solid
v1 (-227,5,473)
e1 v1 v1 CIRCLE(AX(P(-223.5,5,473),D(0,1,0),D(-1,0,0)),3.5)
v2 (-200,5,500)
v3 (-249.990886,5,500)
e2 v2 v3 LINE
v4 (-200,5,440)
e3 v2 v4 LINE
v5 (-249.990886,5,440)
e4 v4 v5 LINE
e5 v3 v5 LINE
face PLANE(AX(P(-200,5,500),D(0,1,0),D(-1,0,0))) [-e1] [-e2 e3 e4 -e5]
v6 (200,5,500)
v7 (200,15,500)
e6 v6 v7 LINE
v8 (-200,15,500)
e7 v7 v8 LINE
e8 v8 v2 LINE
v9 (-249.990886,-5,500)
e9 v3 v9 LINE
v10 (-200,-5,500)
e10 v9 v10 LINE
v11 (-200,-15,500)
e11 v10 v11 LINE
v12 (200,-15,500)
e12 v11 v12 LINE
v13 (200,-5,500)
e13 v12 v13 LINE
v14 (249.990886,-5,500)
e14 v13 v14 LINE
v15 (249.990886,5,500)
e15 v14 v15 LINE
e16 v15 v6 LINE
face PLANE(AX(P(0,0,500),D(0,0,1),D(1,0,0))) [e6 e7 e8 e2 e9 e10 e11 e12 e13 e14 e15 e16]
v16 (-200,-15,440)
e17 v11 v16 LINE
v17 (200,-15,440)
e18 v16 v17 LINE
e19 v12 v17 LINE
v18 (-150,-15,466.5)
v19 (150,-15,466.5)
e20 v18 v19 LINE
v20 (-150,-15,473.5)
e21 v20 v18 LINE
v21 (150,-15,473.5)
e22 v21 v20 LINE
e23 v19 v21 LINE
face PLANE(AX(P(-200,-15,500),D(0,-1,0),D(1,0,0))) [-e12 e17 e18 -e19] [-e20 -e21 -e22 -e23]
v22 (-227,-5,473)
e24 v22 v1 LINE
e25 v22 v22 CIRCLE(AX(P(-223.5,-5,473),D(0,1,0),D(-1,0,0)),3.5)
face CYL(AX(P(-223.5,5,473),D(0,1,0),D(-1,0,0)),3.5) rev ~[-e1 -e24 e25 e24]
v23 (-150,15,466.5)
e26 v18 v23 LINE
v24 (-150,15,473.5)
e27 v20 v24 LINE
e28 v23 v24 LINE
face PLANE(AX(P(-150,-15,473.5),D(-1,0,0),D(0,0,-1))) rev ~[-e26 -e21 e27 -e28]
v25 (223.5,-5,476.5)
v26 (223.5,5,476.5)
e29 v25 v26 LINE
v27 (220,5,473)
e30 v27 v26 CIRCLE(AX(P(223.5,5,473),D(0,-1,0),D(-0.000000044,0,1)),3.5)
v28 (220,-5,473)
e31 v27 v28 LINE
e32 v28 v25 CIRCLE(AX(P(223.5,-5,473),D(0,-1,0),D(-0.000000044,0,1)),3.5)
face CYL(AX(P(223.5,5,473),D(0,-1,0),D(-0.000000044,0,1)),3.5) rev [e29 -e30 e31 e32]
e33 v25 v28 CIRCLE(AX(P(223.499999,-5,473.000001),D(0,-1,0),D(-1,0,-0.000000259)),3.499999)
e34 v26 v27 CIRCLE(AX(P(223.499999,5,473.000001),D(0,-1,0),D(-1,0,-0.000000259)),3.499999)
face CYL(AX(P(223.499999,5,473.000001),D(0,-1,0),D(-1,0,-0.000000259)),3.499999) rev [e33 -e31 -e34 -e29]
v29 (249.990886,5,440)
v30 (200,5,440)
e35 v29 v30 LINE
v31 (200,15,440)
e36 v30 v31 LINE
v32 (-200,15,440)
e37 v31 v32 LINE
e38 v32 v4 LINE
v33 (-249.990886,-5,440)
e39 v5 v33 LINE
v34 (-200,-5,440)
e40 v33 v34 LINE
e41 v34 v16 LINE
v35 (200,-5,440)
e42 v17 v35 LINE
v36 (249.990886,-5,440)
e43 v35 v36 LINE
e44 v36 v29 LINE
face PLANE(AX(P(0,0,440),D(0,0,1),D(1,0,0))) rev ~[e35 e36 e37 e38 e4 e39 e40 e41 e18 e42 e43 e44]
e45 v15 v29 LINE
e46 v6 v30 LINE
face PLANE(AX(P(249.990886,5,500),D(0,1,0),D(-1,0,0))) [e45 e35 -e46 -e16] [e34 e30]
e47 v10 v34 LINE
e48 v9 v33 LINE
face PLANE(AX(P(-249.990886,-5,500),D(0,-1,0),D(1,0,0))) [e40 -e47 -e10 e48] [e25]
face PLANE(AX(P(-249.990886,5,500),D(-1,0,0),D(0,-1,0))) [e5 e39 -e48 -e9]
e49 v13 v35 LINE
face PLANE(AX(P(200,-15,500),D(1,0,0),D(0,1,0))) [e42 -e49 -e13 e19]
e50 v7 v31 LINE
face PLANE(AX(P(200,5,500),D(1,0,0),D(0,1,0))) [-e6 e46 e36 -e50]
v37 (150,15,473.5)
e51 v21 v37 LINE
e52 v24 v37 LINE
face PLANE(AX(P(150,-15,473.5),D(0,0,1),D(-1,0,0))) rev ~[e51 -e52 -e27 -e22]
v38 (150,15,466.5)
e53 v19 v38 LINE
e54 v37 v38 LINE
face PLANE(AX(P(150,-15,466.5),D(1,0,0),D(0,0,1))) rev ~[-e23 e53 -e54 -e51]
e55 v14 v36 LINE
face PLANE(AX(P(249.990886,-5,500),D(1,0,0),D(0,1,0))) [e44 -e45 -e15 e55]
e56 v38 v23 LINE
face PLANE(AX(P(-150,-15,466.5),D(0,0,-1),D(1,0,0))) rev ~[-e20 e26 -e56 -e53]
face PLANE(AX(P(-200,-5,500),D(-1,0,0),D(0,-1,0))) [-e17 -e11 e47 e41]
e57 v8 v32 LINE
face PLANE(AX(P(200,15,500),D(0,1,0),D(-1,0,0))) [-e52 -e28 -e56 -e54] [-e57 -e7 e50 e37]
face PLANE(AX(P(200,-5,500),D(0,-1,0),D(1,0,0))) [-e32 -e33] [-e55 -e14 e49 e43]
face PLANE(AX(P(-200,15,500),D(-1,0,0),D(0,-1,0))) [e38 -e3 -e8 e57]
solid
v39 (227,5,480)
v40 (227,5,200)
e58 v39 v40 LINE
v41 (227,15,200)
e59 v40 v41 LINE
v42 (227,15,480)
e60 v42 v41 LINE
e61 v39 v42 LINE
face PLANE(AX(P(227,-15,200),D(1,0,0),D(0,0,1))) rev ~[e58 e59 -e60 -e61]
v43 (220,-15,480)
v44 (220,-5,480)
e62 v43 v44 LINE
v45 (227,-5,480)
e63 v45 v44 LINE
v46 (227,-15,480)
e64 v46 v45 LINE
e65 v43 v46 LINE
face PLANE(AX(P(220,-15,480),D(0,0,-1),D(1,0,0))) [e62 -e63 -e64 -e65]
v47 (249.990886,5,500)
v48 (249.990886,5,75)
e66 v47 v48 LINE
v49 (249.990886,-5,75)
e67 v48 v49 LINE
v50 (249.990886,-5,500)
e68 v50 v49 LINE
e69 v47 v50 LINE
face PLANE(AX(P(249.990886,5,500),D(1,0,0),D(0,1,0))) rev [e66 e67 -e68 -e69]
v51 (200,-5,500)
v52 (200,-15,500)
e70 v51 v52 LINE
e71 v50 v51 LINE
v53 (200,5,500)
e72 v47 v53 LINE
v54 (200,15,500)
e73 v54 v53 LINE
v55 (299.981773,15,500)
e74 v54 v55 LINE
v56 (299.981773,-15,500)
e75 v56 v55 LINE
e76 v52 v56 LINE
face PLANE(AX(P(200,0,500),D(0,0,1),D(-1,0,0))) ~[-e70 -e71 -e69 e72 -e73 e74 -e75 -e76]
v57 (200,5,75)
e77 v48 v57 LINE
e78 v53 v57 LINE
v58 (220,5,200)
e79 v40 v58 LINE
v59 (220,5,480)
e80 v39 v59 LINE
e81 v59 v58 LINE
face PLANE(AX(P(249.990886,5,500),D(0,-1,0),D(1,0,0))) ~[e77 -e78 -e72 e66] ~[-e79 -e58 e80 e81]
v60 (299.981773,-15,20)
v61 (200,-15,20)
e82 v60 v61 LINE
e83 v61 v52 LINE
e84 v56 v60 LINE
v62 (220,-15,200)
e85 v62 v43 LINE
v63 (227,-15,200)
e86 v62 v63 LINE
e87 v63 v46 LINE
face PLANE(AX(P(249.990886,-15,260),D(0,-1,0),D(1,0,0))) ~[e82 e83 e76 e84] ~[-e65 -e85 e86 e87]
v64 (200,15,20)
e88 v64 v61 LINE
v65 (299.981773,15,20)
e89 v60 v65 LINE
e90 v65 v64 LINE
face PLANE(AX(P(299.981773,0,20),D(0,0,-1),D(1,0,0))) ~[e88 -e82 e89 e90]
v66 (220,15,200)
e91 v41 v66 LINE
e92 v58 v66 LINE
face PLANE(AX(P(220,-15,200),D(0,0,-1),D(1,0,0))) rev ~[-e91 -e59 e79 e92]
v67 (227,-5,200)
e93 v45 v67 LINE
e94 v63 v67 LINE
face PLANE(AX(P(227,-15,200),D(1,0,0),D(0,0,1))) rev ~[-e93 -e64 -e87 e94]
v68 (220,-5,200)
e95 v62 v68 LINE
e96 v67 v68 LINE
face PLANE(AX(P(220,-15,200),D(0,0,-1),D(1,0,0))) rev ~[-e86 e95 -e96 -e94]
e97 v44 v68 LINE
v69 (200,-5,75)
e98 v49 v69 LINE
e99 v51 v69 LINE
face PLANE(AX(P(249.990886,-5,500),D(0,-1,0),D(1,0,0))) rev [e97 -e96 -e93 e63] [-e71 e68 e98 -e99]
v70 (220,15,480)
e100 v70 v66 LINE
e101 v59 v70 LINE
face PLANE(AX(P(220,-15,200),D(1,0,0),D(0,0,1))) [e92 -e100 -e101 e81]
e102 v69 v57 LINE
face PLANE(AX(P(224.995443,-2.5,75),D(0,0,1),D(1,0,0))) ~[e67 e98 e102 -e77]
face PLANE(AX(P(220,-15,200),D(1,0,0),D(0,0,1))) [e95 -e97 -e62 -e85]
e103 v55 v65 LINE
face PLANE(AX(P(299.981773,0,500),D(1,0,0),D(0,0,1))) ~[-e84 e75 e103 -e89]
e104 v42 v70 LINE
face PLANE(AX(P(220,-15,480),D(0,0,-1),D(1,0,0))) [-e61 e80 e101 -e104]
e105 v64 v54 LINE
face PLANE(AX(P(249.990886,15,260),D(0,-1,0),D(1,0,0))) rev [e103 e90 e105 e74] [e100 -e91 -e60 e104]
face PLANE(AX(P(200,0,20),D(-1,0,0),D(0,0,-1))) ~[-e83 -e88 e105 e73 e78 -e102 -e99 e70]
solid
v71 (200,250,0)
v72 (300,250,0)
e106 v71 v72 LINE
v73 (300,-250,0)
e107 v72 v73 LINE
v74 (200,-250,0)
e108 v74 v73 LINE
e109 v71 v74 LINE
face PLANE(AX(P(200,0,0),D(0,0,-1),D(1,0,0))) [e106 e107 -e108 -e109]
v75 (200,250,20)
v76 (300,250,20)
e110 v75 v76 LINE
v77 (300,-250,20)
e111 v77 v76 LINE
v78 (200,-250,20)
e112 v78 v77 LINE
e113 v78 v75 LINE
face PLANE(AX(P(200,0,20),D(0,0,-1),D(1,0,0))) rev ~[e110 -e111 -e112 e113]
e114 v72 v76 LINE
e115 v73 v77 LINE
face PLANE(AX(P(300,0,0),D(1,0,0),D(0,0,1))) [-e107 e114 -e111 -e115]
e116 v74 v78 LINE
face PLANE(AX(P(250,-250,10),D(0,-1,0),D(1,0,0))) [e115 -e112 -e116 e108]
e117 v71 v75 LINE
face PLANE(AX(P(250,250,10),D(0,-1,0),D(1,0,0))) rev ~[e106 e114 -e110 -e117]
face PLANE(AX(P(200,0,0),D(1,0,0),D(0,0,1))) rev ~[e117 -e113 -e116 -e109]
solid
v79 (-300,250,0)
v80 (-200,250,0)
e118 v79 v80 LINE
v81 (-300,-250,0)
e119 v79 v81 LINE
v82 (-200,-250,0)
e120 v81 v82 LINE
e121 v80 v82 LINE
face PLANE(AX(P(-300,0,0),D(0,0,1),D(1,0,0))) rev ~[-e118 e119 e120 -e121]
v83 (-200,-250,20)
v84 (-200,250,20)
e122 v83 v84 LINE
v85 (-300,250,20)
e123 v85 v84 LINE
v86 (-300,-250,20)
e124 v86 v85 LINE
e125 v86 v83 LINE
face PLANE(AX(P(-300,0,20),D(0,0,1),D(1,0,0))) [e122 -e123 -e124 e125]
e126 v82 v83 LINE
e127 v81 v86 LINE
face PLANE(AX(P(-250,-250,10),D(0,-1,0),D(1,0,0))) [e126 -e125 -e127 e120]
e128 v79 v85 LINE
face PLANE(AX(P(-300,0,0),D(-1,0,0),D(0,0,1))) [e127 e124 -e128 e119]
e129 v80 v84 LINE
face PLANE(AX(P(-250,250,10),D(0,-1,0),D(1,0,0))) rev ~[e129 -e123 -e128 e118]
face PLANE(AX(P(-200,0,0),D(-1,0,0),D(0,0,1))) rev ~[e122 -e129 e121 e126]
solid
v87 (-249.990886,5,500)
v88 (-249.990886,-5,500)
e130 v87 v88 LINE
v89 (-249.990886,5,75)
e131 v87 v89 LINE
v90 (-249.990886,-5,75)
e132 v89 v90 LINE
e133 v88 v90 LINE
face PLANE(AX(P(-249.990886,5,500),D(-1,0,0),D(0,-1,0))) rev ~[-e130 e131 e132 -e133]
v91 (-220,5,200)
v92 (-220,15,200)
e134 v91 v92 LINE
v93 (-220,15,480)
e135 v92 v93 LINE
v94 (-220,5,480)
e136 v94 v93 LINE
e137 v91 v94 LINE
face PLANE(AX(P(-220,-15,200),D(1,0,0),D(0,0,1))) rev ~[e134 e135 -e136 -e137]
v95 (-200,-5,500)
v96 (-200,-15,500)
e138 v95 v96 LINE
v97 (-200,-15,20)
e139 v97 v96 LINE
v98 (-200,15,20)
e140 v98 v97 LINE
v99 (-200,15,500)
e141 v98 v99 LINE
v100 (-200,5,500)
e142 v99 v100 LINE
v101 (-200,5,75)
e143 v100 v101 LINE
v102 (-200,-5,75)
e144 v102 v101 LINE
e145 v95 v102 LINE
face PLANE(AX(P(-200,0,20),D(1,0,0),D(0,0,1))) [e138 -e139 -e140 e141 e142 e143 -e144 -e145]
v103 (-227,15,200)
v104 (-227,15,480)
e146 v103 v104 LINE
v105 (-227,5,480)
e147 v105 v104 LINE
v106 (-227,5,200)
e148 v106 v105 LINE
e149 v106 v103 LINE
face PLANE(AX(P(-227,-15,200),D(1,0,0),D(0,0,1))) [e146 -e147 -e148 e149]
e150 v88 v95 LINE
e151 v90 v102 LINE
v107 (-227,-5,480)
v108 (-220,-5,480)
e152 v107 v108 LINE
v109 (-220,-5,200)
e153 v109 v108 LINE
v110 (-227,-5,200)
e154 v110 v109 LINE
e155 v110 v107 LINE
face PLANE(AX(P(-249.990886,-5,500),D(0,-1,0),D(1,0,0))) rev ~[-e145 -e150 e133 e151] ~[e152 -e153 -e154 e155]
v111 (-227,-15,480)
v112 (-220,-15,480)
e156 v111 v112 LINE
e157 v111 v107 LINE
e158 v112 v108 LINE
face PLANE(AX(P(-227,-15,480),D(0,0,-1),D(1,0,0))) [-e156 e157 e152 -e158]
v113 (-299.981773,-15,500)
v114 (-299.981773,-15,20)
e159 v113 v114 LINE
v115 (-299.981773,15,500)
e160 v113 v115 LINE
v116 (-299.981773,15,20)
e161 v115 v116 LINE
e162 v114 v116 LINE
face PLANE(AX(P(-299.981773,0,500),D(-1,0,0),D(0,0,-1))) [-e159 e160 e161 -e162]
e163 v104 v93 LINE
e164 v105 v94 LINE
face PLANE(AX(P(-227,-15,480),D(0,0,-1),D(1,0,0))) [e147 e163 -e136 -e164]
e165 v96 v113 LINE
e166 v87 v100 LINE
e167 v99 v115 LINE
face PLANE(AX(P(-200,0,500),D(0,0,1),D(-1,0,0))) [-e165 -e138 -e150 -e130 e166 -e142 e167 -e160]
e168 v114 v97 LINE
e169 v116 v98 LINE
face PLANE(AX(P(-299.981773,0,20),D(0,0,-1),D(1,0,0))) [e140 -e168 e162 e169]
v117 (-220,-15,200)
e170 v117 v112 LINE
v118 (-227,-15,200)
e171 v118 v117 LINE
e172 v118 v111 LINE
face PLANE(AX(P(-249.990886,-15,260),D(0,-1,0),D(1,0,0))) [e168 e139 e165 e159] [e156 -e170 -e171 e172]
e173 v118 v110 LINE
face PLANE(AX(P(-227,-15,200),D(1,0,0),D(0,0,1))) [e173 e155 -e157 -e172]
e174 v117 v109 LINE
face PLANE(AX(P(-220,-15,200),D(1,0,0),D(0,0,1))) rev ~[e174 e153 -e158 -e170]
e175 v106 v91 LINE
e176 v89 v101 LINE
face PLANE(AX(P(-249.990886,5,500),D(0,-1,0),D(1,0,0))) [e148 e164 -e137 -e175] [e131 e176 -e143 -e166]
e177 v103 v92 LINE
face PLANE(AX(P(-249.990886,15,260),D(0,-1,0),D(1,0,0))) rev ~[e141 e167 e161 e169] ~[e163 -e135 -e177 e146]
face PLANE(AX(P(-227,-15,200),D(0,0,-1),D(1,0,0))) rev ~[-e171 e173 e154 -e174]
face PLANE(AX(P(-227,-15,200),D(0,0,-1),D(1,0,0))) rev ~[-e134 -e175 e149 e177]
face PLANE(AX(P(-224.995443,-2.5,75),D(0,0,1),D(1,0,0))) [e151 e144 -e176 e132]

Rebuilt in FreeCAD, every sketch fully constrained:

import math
import FreeCAD as App
import Part
import Sketcher
from FreeCAD import Vector
Q = App.Units.Quantity


def add_polygon(sketch, points):
    """Adds a closed chain of lines whose ends are joined by coincident constraints."""
    first, n = sketch.GeometryCount, len(points)
    for a, b in zip(points, points[1:] + points[:1]):
        sketch.addGeometry(Part.LineSegment(App.Vector(*a, 0), App.Vector(*b, 0)), False)
    for i in range(n):
        sketch.addConstraint(Sketcher.Constraint("Coincident", first + i, 2, first + (i + 1) % n, 1))

doc = App.newDocument("Part")
body = doc.addObject("PartDesign::Body", "Body")
body.AllowCompound = True

sketch1 = body.newObject("Sketcher::SketchObject", "Sketch")
sketch1.AttachmentSupport = (doc.getObject("XZ_Plane"), [""])
sketch1.MapMode = "FlatFace"
add_polygon(sketch1, [(-300, 20), (-300, 0), (-200, 0), (-200, 20)])
add_polygon(sketch1, [(200, 20), (200, 0), (300, 0), (300, 20)])
sketch1.addConstraint([
    Sketcher.Constraint("Vertical", 0),
    Sketcher.Constraint("Horizontal", 1),
    Sketcher.Constraint("Vertical", 2),
    Sketcher.Constraint("Horizontal", 3),
    Sketcher.Constraint("Vertical", 4),
    Sketcher.Constraint("Horizontal", 5),
    Sketcher.Constraint("Vertical", 6),
    Sketcher.Constraint("Horizontal", 7),
    Sketcher.Constraint("Symmetric", 1, 2, 4, 2, -1, 1),
    Sketcher.Constraint("Symmetric", 0, 2, 5, 2, -2),
    Sketcher.Constraint("Horizontal", 3, 2, 6, 2),
    Sketcher.Constraint("DistanceX", 1, 1, 1, 2, Q("100 mm")),
    Sketcher.Constraint("DistanceY", 0, 2, 0, 1, Q("20 mm")),
    Sketcher.Constraint("DistanceX", 0, 2, -1, 1, Q("300 mm")),
])
pad1 = body.newObject("PartDesign::Pad", "Pad")
pad1.Profile = sketch1
pad1.Length = 500
pad1.Midplane = True
body2 = doc.addObject("PartDesign::Body", "Body001")

sketch2 = body2.newObject("Sketcher::SketchObject", "Sketch001")
sketch2.AttachmentSupport = (doc.getObject("XZ_Plane001"), [""])
sketch2.MapMode = "FlatFace"
add_polygon(sketch2, [(-299.981773, 20), (-200, 20), (-200, 500), (-299.981773, 500)])
sketch2.addConstraint([
    Sketcher.Constraint("Horizontal", 0),
    Sketcher.Constraint("Vertical", 1),
    Sketcher.Constraint("Horizontal", 2),
    Sketcher.Constraint("Vertical", 3),
    Sketcher.Constraint("DistanceY", 1, 1, 1, 2, Q("480 mm")),
    Sketcher.Constraint("DistanceX", 0, 2, -1, 1, Q("200 mm")),
    Sketcher.Constraint("DistanceY", -1, 1, 0, 2, Q("20 mm")),
    Sketcher.Constraint("DistanceX", 0, 1, 0, 2, Q("99.981773 mm")),
])
pad2 = body2.newObject("PartDesign::Pad", "Pad001")
pad2.Profile = sketch2
pad2.Length = 30
pad2.Midplane = True

sketch3 = body2.newObject("Sketcher::SketchObject", "Sketch002")
sketch3.AttachmentSupport = (doc.getObject("XY_Plane001"), [""])
sketch3.MapMode = "FlatFace"
sketch3.AttachmentOffset = App.Placement(Vector(0, 0, 500), App.Rotation())
add_polygon(sketch3, [(-249.990886, -5), (-200, -5), (-200, 5), (-249.990886, 5)])
sketch3.addConstraint([
    Sketcher.Constraint("Horizontal", 0),
    Sketcher.Constraint("Vertical", 1),
    Sketcher.Constraint("Horizontal", 2),
    Sketcher.Constraint("Vertical", 3),
    Sketcher.Constraint("DistanceY", 1, 1, 1, 2, Q("10 mm")),
    Sketcher.Constraint("DistanceX", 0, 2, -1, 1, Q("200 mm")),
    Sketcher.Constraint("DistanceY", 0, 2, -1, 1, Q("5 mm")),
    Sketcher.Constraint("DistanceX", 0, 1, 0, 2, Q("49.990886 mm")),
])
pocket1 = body2.newObject("PartDesign::Pocket", "Pocket")
pocket1.Profile = sketch3
pocket1.Length = 425
body3 = doc.addObject("PartDesign::Body", "Body002")
doc.recompute()

mirroring = doc.addObject("Part::Mirroring", "Mirroring")
mirroring.Source = body2
mirroring.Base = Vector(0, 0, 0)
mirroring.Normal = Vector(1, 0, 0)
body3.BaseFeature = mirroring
doc.recompute()
body4 = doc.addObject("PartDesign::Body", "Body003")
body4.AllowCompound = True

sketch4 = body4.newObject("Sketcher::SketchObject", "Sketch003")
sketch4.AttachmentSupport = (doc.getObject("XZ_Plane003"), [""])
sketch4.MapMode = "FlatFace"
sketch4.AttachmentOffset = App.Placement(Vector(0, 0, 15), App.Rotation())
add_polygon(sketch4, [(-227, 480), (-227, 200), (-220, 200), (-220, 480)])
add_polygon(sketch4, [(220, 480), (220, 200), (227, 200), (227, 480)])
sketch4.addConstraint([
    Sketcher.Constraint("Vertical", 0),
    Sketcher.Constraint("Horizontal", 1),
    Sketcher.Constraint("Vertical", 2),
    Sketcher.Constraint("Horizontal", 3),
    Sketcher.Constraint("Vertical", 4),
    Sketcher.Constraint("Horizontal", 5),
    Sketcher.Constraint("Vertical", 6),
    Sketcher.Constraint("Horizontal", 7),
    Sketcher.Constraint("Symmetric", 1, 2, 4, 2, -2),
    Sketcher.Constraint("Symmetric", 3, 2, 6, 2, -2),
    Sketcher.Constraint("DistanceX", 1, 1, 1, 2, Q("7 mm")),
    Sketcher.Constraint("DistanceY", 0, 2, 0, 1, Q("280 mm")),
    Sketcher.Constraint("DistanceX", 0, 2, -1, 1, Q("227 mm")),
    Sketcher.Constraint("DistanceY", -1, 1, 0, 2, Q("200 mm")),
])
pad3 = body4.newObject("PartDesign::Pad", "Pad002")
pad3.Profile = sketch4
pad3.Length = 110
pad3.Reversed = True
doc.recompute()

body5 = doc.addObject("PartDesign::Body", "Body004")
body5.BaseFeature = body4
boolean = body2.newObject("PartDesign::Boolean", "Boolean")
boolean.Type = "Cut"
boolean.addObjects([body5])
doc.recompute()

boolean2 = body3.newObject("PartDesign::Boolean", "Boolean001")
boolean2.Type = "Cut"
boolean2.addObjects([body4])
body6 = doc.addObject("PartDesign::Body", "Body005")

sketch5 = body6.newObject("Sketcher::SketchObject", "Sketch004")
sketch5.AttachmentSupport = (doc.getObject("XY_Plane005"), [""])
sketch5.MapMode = "FlatFace"
sketch5.AttachmentOffset = App.Placement(Vector(0, 0, 500), App.Rotation())
add_polygon(sketch5, [(-200, -5), (-200, -15), (200, -15), (200, -5), (249.990886, -5), (249.990886, 5), (200, 5), (200, 15), (-200, 15), (-200, 5), (-249.990886, 5), (-249.990886, -5)])
sketch5.addConstraint([
    Sketcher.Constraint("Vertical", 0),
    Sketcher.Constraint("Horizontal", 1),
    Sketcher.Constraint("Vertical", 2),
    Sketcher.Constraint("Horizontal", 3),
    Sketcher.Constraint("Vertical", 4),
    Sketcher.Constraint("Horizontal", 5),
    Sketcher.Constraint("Vertical", 6),
    Sketcher.Constraint("Horizontal", 7),
    Sketcher.Constraint("Vertical", 8),
    Sketcher.Constraint("Horizontal", 9),
    Sketcher.Constraint("Vertical", 10),
    Sketcher.Constraint("Horizontal", 11),
    Sketcher.Constraint("Symmetric", 0, 2, 6, 2, -1, 1),
    Sketcher.Constraint("Symmetric", 2, 2, 8, 2, -1, 1),
    Sketcher.Constraint("Symmetric", 4, 2, 10, 2, -1, 1),
    Sketcher.Constraint("Symmetric", 5, 2, 8, 2, -2),
    Sketcher.Constraint("Equal", 2, 4),
    Sketcher.Constraint("DistanceX", 1, 1, 1, 2, Q("400 mm")),
    Sketcher.Constraint("DistanceY", 0, 2, 0, 1, Q("10 mm")),
    Sketcher.Constraint("DistanceX", 3, 1, 3, 2, Q("49.990886 mm")),
])
pad4 = body6.newObject("PartDesign::Pad", "Pad003")
pad4.Profile = sketch5
pad4.Length = 60
pad4.Reversed = True

sketch6 = body6.newObject("Sketcher::SketchObject", "Sketch005")
sketch6.AttachmentSupport = (doc.getObject("XZ_Plane005"), [""])
sketch6.MapMode = "FlatFace"
sketch6.AttachmentOffset = App.Placement(Vector(0, 0, -5), App.Rotation())
sketch6.addGeometry([
    Part.ArcOfCircle(Part.Circle(Vector(223.499999, 473.000001, 0), Vector(0, 0, 1), 3.499999), math.radians(89.999985), math.radians(180.000015)),
    Part.ArcOfCircle(Part.Circle(Vector(223.5, 473, 0), Vector(0, 0, 1), 3.5), math.radians(179.999997), math.radians(450.000003)),
    Part.Circle(Vector(-223.5, 473, 0), Vector(0, 0, 1), 3.5),
], False)
sketch6.addConstraint([
    Sketcher.Constraint("Tangent", 0, 1, 1, 2),
    Sketcher.Constraint("Coincident", 1, 1, 0, 2),
    Sketcher.Constraint("Equal", 1, 2),
    Sketcher.Constraint("Symmetric", 0, 3, 2, 3, -2),
    Sketcher.Constraint("Horizontal", 2, 3, 1, 1),
    Sketcher.Constraint("Vertical", 1, 3, 0, 1),
    Sketcher.Constraint("Diameter", 2, Q("7 mm")),
    Sketcher.Constraint("DistanceY", -1, 1, 0, 3, Q("473.000001 mm")),
    Sketcher.Constraint("DistanceX", -1, 1, 1, 1, Q("220 mm")),
])
pocket2 = body6.newObject("PartDesign::Pocket", "Pocket001")
pocket2.Profile = sketch6
pocket2.Length = 112
pocket2.Midplane = True

sketch7 = body6.newObject("Sketcher::SketchObject", "Sketch006")
sketch7.AttachmentSupport = (doc.getObject("XZ_Plane005"), [""])
sketch7.MapMode = "FlatFace"
sketch7.AttachmentOffset = App.Placement(Vector(0, 0, 15), App.Rotation())
add_polygon(sketch7, [(-150, 473.5), (-150, 466.5), (150, 466.5), (150, 473.5)])
sketch7.addConstraint([
    Sketcher.Constraint("Vertical", 0),
    Sketcher.Constraint("Horizontal", 1),
    Sketcher.Constraint("Vertical", 2),
    Sketcher.Constraint("Horizontal", 3),
    Sketcher.Constraint("DistanceX", 1, 1, 1, 2, Q("300 mm")),
    Sketcher.Constraint("DistanceY", 0, 2, 0, 1, Q("7 mm")),
    Sketcher.Constraint("DistanceX", 0, 2, -1, 1, Q("150 mm")),
    Sketcher.Constraint("DistanceY", -1, 1, 0, 2, Q("466.5 mm")),
])
pocket3 = body6.newObject("PartDesign::Pocket", "Pocket002")
pocket3.Profile = sketch7
pocket3.Length = 46
mirroring.Visibility = False

doc.recompute()
